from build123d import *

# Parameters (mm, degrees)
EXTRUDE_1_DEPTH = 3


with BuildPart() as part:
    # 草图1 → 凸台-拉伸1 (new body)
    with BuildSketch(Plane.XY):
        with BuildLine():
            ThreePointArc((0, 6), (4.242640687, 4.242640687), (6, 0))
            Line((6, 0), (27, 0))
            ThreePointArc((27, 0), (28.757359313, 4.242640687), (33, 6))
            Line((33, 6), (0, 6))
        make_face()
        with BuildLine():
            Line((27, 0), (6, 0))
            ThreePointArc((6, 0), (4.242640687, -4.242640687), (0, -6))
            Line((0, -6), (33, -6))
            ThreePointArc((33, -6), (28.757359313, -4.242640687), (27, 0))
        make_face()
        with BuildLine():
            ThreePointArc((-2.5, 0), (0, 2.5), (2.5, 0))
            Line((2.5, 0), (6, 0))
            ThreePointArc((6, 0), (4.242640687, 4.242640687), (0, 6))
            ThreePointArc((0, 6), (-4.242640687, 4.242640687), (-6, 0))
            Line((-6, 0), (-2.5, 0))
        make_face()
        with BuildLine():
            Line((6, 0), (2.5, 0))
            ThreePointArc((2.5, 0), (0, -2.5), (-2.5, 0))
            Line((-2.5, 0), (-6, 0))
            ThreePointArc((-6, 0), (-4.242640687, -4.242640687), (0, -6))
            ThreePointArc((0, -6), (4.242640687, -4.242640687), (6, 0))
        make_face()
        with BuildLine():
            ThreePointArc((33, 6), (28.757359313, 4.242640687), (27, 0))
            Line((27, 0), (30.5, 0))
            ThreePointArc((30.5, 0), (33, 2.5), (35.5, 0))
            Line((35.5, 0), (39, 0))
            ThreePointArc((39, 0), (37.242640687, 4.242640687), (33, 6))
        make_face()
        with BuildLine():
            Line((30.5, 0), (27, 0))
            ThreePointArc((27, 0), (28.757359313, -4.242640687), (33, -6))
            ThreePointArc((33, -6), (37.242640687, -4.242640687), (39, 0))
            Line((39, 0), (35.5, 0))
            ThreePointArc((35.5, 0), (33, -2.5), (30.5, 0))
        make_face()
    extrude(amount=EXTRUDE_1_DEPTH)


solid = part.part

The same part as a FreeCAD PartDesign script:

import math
import FreeCAD as App
import Part
import Sketcher
from FreeCAD import Vector

doc = App.newDocument("Part")
params = doc.addObject("Spreadsheet::Sheet", "Params")
for row, (alias, value) in enumerate([
    ("sketch1_diameter", "5 mm"),
    ("sketch1_radius", "6 mm"),
    ("sketch1_width", "33 mm"),
    ("pad1_length", "3 mm"),
], start=1):
    params.set(f"A{row}", alias)
    params.set(f"B{row}", "=" + value)
    params.setAlias(f"B{row}", alias)

body = doc.addObject("PartDesign::Body", "Body")

# Sketch on XY plane
sketch1 = doc.addObject("Sketcher::SketchObject", "Sketch")
body.addObject(sketch1)
sketch1.AttachmentSupport = (doc.XY_Plane, [""])
sketch1.MapMode = "FlatFace"
sketch1.addGeometry([
    Part.LineSegment(Vector(33, 6, 0), Vector(0, 6, 0)),  # 0
    Part.ArcOfCircle(Part.Circle(Vector(0, 0, 0), Vector(0, 0, 1), 6), math.radians(90), math.radians(180)),  # 1
    Part.ArcOfCircle(Part.Circle(Vector(0, 0, 0), Vector(0, 0, 1), 6), math.radians(180), math.radians(270)),  # 2
    Part.LineSegment(Vector(0, -6, 0), Vector(33, -6, 0)),  # 3
    Part.ArcOfCircle(Part.Circle(Vector(33, 0, 0), Vector(0, 0, 1), 6), math.radians(-90), math.radians(0)),  # 4
    Part.ArcOfCircle(Part.Circle(Vector(33, 0, 0), Vector(0, 0, 1), 6), math.radians(0), math.radians(90)),  # 5
    Part.Circle(Vector(33, 0, 0), Vector(0, 0, 1), 2.5),  # 6
    Part.Circle(Vector(0, 0, 0), Vector(0, 0, 1), 2.5),  # 7
], False)
sketch1.addConstraint([
    Sketcher.Constraint("Tangent", 0, 2, 1, 1),
    Sketcher.Constraint("Tangent", 1, 2, 2, 1),
    Sketcher.Constraint("Tangent", 2, 2, 3, 1),
    Sketcher.Constraint("Tangent", 3, 2, 4, 1),
    Sketcher.Constraint("Tangent", 4, 2, 5, 1),
    Sketcher.Constraint("Tangent", 5, 2, 0, 1),
    Sketcher.Constraint("Horizontal", 0),
    Sketcher.Constraint("Horizontal", 3),
    Sketcher.Constraint("Coincident", 1, 3, -1, 1),
    Sketcher.Constraint("Coincident", 7, 3, -1, 1),
    Sketcher.Constraint("Coincident", 6, 3, 4, 3),
    Sketcher.Constraint("Equal", 1, 2),
    Sketcher.Constraint("Equal", 2, 4),
    Sketcher.Constraint("Equal", 6, 7),
    Sketcher.Constraint("PointOnObject", 1, 2, -1),
    Sketcher.Constraint("PointOnObject", 4, 2, -1),
    Sketcher.Constraint("Diameter", 6, 5.0),
    Sketcher.Constraint("Radius", 1, 6.0),
    Sketcher.Constraint("DistanceX", 0, 2, 0, 1, 33.0),
])
sketch1.setExpression("Constraints[16]", "Params.sketch1_diameter")
sketch1.setExpression("Constraints[17]", "Params.sketch1_radius")
sketch1.setExpression("Constraints[18]", "Params.sketch1_width")
pad1 = doc.addObject("PartDesign::Pad", "Pad")
body.addObject(pad1)
pad1.Profile = sketch1
pad1.setExpression("Length", "Params.pad1_length")

doc.recompute()
